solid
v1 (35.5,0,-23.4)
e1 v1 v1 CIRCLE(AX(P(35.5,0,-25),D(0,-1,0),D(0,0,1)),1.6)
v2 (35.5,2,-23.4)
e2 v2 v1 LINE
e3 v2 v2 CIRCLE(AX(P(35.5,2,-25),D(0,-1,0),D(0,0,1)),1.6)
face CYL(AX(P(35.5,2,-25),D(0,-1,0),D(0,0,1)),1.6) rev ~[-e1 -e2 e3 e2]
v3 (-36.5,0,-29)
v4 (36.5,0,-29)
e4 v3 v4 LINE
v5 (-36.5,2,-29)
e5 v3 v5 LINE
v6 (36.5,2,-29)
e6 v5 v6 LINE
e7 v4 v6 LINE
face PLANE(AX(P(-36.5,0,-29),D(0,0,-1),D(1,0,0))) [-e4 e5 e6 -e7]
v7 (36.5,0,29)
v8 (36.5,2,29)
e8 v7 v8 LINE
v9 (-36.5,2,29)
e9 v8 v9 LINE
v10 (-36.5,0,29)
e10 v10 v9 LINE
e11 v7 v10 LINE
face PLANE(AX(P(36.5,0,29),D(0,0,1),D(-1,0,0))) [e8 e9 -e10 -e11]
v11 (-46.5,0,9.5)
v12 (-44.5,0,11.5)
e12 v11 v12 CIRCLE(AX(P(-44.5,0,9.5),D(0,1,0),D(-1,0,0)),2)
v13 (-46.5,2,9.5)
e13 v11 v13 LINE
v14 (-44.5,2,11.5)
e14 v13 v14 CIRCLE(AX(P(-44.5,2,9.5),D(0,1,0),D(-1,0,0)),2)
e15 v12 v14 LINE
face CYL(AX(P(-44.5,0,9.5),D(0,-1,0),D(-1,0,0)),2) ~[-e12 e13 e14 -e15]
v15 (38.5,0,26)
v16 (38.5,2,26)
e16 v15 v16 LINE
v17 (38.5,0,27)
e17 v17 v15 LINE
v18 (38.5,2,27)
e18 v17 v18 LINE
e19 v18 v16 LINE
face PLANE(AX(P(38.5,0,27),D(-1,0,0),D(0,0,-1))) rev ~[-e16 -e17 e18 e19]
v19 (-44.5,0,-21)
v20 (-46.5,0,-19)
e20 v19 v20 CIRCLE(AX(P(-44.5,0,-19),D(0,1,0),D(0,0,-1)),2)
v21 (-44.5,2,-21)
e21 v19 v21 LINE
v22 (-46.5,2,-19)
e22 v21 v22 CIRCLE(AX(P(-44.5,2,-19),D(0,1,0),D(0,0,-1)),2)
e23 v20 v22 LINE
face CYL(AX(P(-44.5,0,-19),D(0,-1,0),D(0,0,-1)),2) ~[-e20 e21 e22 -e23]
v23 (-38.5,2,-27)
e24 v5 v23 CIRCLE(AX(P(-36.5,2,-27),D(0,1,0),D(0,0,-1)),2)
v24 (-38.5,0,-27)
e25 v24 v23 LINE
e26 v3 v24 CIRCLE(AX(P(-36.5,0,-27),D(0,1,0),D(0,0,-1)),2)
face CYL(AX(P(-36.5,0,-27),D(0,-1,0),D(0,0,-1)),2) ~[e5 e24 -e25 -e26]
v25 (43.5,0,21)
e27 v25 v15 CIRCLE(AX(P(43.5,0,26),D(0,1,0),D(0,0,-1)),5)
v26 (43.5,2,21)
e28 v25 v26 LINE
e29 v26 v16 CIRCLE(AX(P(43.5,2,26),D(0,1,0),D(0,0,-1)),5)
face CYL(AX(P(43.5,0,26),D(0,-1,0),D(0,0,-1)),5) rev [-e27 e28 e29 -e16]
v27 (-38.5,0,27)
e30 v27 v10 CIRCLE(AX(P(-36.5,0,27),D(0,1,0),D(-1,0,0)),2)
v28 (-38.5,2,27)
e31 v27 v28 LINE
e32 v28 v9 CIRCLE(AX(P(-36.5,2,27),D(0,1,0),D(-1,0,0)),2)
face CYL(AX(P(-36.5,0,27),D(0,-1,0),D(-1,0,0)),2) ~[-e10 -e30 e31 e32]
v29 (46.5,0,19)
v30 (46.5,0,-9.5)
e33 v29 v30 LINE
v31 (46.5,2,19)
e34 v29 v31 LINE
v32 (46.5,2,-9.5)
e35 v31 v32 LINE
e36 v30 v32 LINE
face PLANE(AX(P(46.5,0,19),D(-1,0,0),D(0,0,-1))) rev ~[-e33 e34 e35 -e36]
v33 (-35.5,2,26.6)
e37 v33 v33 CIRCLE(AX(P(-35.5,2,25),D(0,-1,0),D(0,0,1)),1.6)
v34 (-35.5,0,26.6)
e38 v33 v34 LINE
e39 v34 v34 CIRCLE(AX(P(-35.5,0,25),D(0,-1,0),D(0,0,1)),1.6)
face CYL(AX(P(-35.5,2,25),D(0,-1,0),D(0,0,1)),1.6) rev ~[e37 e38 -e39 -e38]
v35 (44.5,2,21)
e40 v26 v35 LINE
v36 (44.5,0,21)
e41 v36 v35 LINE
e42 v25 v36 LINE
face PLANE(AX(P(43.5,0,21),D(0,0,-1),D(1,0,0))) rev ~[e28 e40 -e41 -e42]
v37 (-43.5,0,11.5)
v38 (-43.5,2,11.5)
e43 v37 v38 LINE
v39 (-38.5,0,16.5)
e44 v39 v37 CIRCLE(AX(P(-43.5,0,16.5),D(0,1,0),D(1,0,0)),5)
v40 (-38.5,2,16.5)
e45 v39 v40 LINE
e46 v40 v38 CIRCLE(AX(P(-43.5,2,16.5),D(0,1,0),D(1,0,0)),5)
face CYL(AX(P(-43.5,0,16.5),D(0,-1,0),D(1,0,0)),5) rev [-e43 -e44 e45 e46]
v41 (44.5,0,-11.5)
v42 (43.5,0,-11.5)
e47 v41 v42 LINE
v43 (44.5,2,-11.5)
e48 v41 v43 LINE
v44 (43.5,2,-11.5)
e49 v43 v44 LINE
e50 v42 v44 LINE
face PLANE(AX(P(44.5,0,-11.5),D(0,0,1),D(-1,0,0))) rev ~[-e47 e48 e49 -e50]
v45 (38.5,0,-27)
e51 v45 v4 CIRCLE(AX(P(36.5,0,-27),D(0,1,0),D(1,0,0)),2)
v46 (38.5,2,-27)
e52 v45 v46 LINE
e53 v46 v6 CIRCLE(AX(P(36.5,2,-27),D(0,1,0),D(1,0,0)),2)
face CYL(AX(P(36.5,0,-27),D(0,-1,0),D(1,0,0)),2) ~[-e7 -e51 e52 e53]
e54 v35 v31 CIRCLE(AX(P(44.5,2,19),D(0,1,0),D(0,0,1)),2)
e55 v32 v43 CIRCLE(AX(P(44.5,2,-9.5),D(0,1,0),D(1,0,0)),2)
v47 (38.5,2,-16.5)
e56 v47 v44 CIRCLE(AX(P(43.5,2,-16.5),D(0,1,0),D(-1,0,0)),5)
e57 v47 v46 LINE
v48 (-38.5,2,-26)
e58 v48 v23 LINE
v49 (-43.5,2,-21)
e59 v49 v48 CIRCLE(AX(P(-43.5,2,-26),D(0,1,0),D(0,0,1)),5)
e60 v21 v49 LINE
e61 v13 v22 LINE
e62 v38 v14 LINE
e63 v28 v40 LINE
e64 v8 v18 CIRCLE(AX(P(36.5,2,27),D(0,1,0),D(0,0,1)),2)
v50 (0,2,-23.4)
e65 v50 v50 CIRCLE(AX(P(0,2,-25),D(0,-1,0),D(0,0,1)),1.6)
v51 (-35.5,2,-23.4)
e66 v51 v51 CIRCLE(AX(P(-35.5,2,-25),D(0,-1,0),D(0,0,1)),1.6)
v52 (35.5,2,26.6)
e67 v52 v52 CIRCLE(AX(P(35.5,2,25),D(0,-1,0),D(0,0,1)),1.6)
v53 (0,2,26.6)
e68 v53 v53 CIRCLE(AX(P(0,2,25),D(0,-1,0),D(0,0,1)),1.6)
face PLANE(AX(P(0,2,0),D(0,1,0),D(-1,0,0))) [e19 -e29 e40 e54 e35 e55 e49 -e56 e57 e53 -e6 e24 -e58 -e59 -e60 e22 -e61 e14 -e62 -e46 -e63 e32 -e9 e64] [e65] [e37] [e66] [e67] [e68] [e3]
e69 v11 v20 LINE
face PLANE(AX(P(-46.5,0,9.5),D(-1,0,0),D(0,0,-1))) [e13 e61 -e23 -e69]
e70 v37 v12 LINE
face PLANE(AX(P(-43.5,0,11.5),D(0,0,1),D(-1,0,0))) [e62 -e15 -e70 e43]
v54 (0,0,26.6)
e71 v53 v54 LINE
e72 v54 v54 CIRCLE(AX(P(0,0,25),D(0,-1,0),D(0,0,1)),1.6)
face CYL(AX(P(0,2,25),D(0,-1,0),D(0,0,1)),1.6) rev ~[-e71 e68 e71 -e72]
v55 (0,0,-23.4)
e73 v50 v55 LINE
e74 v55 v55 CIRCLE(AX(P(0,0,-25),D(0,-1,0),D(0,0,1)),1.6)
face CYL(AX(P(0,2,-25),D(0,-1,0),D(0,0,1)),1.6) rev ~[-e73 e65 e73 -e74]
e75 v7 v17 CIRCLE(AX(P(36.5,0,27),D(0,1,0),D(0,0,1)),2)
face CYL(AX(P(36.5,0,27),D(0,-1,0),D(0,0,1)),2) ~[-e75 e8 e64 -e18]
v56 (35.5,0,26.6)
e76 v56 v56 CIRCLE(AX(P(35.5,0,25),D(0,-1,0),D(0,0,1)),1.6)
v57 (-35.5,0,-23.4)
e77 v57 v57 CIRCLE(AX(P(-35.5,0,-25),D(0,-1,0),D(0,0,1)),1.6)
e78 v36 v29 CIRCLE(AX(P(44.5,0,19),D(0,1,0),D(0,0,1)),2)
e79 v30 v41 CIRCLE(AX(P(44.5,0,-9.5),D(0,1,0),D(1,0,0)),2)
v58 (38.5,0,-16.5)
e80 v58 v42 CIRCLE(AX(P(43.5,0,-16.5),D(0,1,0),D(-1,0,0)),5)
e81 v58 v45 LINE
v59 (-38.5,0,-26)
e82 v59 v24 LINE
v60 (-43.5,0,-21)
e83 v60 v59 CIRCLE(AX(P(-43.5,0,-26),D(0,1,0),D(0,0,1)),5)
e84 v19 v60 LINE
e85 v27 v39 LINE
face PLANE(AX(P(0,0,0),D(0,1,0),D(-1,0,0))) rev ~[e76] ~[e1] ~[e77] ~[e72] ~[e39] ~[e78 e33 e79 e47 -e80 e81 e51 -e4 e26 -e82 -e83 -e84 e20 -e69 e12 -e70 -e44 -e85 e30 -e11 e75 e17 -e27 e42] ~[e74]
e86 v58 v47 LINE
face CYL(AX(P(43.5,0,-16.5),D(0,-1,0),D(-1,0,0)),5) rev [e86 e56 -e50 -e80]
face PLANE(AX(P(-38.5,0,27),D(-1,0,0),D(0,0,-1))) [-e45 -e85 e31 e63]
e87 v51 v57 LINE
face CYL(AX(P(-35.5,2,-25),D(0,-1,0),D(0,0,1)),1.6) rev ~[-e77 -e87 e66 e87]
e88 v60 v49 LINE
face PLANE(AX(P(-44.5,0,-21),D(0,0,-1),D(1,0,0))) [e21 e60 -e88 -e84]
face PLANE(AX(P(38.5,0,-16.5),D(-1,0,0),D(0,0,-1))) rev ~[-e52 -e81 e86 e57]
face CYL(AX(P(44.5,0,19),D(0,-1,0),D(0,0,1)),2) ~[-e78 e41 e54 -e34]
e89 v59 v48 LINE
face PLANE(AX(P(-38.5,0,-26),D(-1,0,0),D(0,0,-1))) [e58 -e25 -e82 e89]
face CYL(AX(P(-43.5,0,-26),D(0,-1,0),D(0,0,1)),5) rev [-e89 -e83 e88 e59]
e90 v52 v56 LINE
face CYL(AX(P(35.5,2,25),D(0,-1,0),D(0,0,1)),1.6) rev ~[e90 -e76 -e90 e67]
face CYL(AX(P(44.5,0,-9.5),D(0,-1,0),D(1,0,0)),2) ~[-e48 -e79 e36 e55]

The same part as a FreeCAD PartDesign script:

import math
import FreeCAD as App
import Part
import Sketcher
from FreeCAD import Vector
Q = App.Units.Quantity

doc = App.newDocument("Part")
body = doc.addObject("PartDesign::Body", "Body")

sketch1 = body.newObject("Sketcher::SketchObject", "Sketch")
sketch1.AttachmentSupport = (doc.getObject("XZ_Plane"), [""])
sketch1.MapMode = "FlatFace"
sketch1.addGeometry([
    Part.LineSegment(Vector(-36.5, 29, 0), Vector(36.5, 29, 0)),
    Part.ArcOfCircle(Part.Circle(Vector(36.5, 27, 0), Vector(0, 0, 1), 2), math.radians(0), math.radians(90)),
    Part.LineSegment(Vector(38.5, 27, 0), Vector(38.5, 26, 0)),
    Part.ArcOfCircle(Part.Circle(Vector(43.5, 26, 0), Vector(0, 0, 1), 5), math.radians(180), math.radians(270)),
    Part.LineSegment(Vector(43.5, 21, 0), Vector(44.5, 21, 0)),
    Part.ArcOfCircle(Part.Circle(Vector(44.5, 19, 0), Vector(0, 0, 1), 2), math.radians(0), math.radians(90)),
    Part.LineSegment(Vector(46.5, 19, 0), Vector(46.5, -9.5, 0)),
    Part.ArcOfCircle(Part.Circle(Vector(44.5, -9.5, 0), Vector(0, 0, 1), 2), math.radians(-90), math.radians(0)),
    Part.LineSegment(Vector(44.5, -11.5, 0), Vector(43.5, -11.5, 0)),
    Part.ArcOfCircle(Part.Circle(Vector(43.5, -16.5, 0), Vector(0, 0, 1), 5), math.radians(90), math.radians(180)),
    Part.LineSegment(Vector(38.5, -16.5, 0), Vector(38.5, -27, 0)),
    Part.ArcOfCircle(Part.Circle(Vector(36.5, -27, 0), Vector(0, 0, 1), 2), math.radians(-90), math.radians(0)),
    Part.LineSegment(Vector(36.5, -29, 0), Vector(-36.5, -29, 0)),
    Part.ArcOfCircle(Part.Circle(Vector(-36.5, -27, 0), Vector(0, 0, 1), 2), math.radians(180), math.radians(270)),
    Part.LineSegment(Vector(-38.5, -27, 0), Vector(-38.5, -26, 0)),
    Part.ArcOfCircle(Part.Circle(Vector(-43.5, -26, 0), Vector(0, 0, 1), 5), math.radians(0), math.radians(90)),
    Part.LineSegment(Vector(-43.5, -21, 0), Vector(-44.5, -21, 0)),
    Part.ArcOfCircle(Part.Circle(Vector(-44.5, -19, 0), Vector(0, 0, 1), 2), math.radians(180), math.radians(270)),
    Part.LineSegment(Vector(-46.5, -19, 0), Vector(-46.5, 9.5, 0)),
    Part.ArcOfCircle(Part.Circle(Vector(-44.5, 9.5, 0), Vector(0, 0, 1), 2), math.radians(90), math.radians(180)),
    Part.LineSegment(Vector(-44.5, 11.5, 0), Vector(-43.5, 11.5, 0)),
    Part.ArcOfCircle(Part.Circle(Vector(-43.5, 16.5, 0), Vector(0, 0, 1), 5), math.radians(-90), math.radians(0)),
    Part.LineSegment(Vector(-38.5, 16.5, 0), Vector(-38.5, 27, 0)),
    Part.ArcOfCircle(Part.Circle(Vector(-36.5, 27, 0), Vector(0, 0, 1), 2), math.radians(90), math.radians(180)),
], False)
sketch1.addConstraint([
    Sketcher.Constraint("Tangent", 0, 2, 1, 2),
    Sketcher.Constraint("Tangent", 1, 1, 2, 1),
    Sketcher.Constraint("Tangent", 2, 2, 3, 1),
    Sketcher.Constraint("Tangent", 3, 2, 4, 1),
    Sketcher.Constraint("Tangent", 4, 2, 5, 2),
    Sketcher.Constraint("Tangent", 5, 1, 6, 1),
    Sketcher.Constraint("Tangent", 6, 2, 7, 2),
    Sketcher.Constraint("Tangent", 7, 1, 8, 1),
    Sketcher.Constraint("Tangent", 8, 2, 9, 1),
    Sketcher.Constraint("Tangent", 9, 2, 10, 1),
    Sketcher.Constraint("Tangent", 10, 2, 11, 2),
    Sketcher.Constraint("Tangent", 11, 1, 12, 1),
    Sketcher.Constraint("Tangent", 12, 2, 13, 2),
    Sketcher.Constraint("Tangent", 13, 1, 14, 1),
    Sketcher.Constraint("Tangent", 14, 2, 15, 1),
    Sketcher.Constraint("Tangent", 15, 2, 16, 1),
    Sketcher.Constraint("Tangent", 16, 2, 17, 2),
    Sketcher.Constraint("Tangent", 17, 1, 18, 1),
    Sketcher.Constraint("Tangent", 18, 2, 19, 2),
    Sketcher.Constraint("Tangent", 19, 1, 20, 1),
    Sketcher.Constraint("Tangent", 20, 2, 21, 1),
    Sketcher.Constraint("Tangent", 21, 2, 22, 1),
    Sketcher.Constraint("Tangent", 22, 2, 23, 2),
    Sketcher.Constraint("Tangent", 23, 1, 0, 1),
    Sketcher.Constraint("Horizontal", 0),
    Sketcher.Constraint("Vertical", 2),
    Sketcher.Constraint("Horizontal", 4),
    Sketcher.Constraint("Vertical", 6),
    Sketcher.Constraint("Horizontal", 8),
    Sketcher.Constraint("Vertical", 10),
    Sketcher.Constraint("Horizontal", 12),
    Sketcher.Constraint("Vertical", 14),
    Sketcher.Constraint("Horizontal", 16),
    Sketcher.Constraint("Vertical", 18),
    Sketcher.Constraint("Horizontal", 20),
    Sketcher.Constraint("Vertical", 22),
    Sketcher.Constraint("Equal", 1, 5),
    Sketcher.Constraint("Equal", 5, 7),
    Sketcher.Constraint("Equal", 3, 9),
    Sketcher.Constraint("Equal", 7, 11),
    Sketcher.Constraint("Equal", 11, 13),
    Sketcher.Constraint("Equal", 9, 15),
    Sketcher.Constraint("Equal", 13, 17),
    Sketcher.Constraint("Equal", 17, 19),
    Sketcher.Constraint("Equal", 15, 21),
    Sketcher.Constraint("Equal", 19, 23),
    Sketcher.Constraint("Symmetric", 1, 3, 13, 3, -1, 1),
    Sketcher.Constraint("Symmetric", 5, 3, 17, 3, -1, 1),
    Sketcher.Constraint("Symmetric", 9, 3, 21, 3, -1, 1),
    Sketcher.Constraint("Vertical", 3, 3, 9, 3),
    Sketcher.Constraint("Equal", 20, 2),
    Sketcher.Constraint("Radius", 1, Q("2 mm")),
    Sketcher.Constraint("Radius", 3, Q("5 mm")),
    Sketcher.Constraint("DistanceX", 1, 3, 5, 3, Q("8 mm")),
    Sketcher.Constraint("DistanceY", 11, 3, 7, 3, Q("17.5 mm")),
    Sketcher.Constraint("DistanceX", 0, 1, 0, 2, Q("73 mm")),
    Sketcher.Constraint("DistanceY", 6, 2, 6, 1, Q("28.5 mm")),
])
pad1 = body.newObject("PartDesign::Pad", "Pad")
pad1.Profile = sketch1
pad1.Length = 2
pad1.Reversed = True

sketch2 = body.newObject("Sketcher::SketchObject", "Sketch001")
sketch2.AttachmentSupport = (doc.getObject("XZ_Plane"), [""])
sketch2.MapMode = "FlatFace"
sketch2.AttachmentOffset = App.Placement(Vector(0, 0, -2), App.Rotation())
sketch2.addGeometry([
    Part.Circle(Vector(0, 25, 0), Vector(0, 0, 1), 1.6),
    Part.Circle(Vector(-35.5, 25, 0), Vector(0, 0, 1), 1.6),
    Part.Circle(Vector(-35.5, -25, 0), Vector(0, 0, 1), 1.6),
    Part.Circle(Vector(0, -25, 0), Vector(0, 0, 1), 1.6),
    Part.Circle(Vector(35.5, 25, 0), Vector(0, 0, 1), 1.6),
    Part.Circle(Vector(35.5, -25, 0), Vector(0, 0, 1), 1.6),
], False)
sketch2.addConstraint([
    Sketcher.Constraint("Equal", 0, 1),
    Sketcher.Constraint("Equal", 1, 2),
    Sketcher.Constraint("Equal", 2, 3),
    Sketcher.Constraint("Equal", 3, 4),
    Sketcher.Constraint("Equal", 4, 5),
    Sketcher.Constraint("Symmetric", 0, 3, 3, 3, -1, 1),
    Sketcher.Constraint("Symmetric", 2, 3, 4, 3, -1, 1),
    Sketcher.Constraint("Symmetric", 1, 3, 5, 3, -1, 1),
    Sketcher.Constraint("Symmetric", 1, 3, 4, 3, -2),
    Sketcher.Constraint("PointOnObject", 0, 3, -2),
    Sketcher.Constraint("Horizontal", 0, 3, 1, 3),
    Sketcher.Constraint("Diameter", 0, Q("3.2 mm")),
    Sketcher.Constraint("DistanceY", -1, 1, 0, 3, Q("25 mm")),
    Sketcher.Constraint("DistanceX", 1, 3, 4, 3, Q("71 mm")),
])
doc.recompute()
hole = body.newObject("PartDesign::Hole", "Hole")
hole.Profile = sketch2
hole.ThreadType = "None"
hole.Diameter = 3.2
hole.DepthType = "Dimension"
hole.Depth = 7.5
hole.DrillPoint = "Flat"
hole.Reversed = True

doc.recompute()
